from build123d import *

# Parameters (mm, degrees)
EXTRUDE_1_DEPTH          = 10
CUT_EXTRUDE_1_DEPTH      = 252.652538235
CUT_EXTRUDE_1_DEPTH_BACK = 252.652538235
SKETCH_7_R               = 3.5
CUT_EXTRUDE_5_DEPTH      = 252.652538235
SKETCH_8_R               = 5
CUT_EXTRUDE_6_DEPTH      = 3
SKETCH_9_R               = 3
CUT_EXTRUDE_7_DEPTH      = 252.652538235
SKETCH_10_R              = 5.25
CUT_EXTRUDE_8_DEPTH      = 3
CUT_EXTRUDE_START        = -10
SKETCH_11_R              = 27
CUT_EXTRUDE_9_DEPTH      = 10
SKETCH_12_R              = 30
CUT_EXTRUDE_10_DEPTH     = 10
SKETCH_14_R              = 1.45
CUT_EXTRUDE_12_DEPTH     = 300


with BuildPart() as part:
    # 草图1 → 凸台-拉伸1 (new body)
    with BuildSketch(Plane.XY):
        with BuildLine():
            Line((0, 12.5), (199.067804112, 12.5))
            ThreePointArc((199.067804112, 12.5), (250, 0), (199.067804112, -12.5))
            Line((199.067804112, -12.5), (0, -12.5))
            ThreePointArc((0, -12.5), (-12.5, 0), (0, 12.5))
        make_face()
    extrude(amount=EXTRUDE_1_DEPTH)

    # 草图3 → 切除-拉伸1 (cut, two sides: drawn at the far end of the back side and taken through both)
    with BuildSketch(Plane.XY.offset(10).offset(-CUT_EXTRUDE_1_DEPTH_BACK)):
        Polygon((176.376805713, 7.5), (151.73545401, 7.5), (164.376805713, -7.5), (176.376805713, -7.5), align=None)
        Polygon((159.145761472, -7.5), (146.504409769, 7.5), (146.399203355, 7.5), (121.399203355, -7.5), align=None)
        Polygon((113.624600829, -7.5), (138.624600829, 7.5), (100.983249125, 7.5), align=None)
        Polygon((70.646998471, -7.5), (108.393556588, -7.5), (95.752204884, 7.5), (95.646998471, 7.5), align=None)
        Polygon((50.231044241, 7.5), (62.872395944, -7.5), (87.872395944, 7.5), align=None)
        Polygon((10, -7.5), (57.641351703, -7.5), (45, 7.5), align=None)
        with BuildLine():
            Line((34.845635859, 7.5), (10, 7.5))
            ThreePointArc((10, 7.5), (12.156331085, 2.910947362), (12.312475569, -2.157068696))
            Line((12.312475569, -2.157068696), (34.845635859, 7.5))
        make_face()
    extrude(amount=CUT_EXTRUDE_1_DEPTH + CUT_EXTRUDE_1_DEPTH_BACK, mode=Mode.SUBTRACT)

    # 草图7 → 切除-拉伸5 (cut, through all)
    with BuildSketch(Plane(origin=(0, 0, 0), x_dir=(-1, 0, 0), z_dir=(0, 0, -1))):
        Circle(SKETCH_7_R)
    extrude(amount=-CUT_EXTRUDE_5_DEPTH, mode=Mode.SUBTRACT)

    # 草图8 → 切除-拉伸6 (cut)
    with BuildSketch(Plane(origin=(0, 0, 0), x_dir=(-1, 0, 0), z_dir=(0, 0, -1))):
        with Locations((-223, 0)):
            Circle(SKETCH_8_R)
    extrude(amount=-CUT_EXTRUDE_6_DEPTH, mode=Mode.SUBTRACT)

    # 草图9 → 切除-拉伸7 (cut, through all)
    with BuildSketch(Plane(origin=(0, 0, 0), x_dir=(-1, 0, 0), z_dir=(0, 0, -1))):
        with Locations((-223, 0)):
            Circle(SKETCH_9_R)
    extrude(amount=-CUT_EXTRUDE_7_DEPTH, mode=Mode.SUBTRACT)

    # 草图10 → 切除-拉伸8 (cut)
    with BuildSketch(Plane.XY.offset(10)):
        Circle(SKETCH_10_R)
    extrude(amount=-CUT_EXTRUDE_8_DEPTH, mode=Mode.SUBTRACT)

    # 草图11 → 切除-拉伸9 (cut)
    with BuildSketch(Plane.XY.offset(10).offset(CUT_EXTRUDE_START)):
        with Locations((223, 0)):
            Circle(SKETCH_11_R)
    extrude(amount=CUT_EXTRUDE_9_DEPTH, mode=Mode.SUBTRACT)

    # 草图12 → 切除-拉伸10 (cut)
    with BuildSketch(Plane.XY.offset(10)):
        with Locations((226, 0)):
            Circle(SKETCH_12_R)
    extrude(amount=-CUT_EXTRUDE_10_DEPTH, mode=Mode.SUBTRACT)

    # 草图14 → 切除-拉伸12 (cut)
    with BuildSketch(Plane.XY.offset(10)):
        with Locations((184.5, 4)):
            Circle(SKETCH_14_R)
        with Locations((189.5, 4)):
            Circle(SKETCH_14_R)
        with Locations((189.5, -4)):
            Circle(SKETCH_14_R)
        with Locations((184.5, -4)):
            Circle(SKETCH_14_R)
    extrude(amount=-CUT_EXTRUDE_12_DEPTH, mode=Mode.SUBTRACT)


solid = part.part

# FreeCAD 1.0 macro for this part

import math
import FreeCAD as App
import Part
import Sketcher


def add_polygon(sketch, points):
    """Adds a closed chain of lines whose ends are joined by coincident constraints."""
    first, n = sketch.GeometryCount, len(points)
    for a, b in zip(points, points[1:] + points[:1]):
        sketch.addGeometry(Part.LineSegment(App.Vector(*a, 0), App.Vector(*b, 0)), False)
    for i in range(n):
        sketch.addConstraint(Sketcher.Constraint("Coincident", first + i, 2, first + (i + 1) % n, 1))

doc = App.newDocument("Part")
body = doc.addObject("PartDesign::Body", "Body")

# Sketch on XY plane
sketch1 = body.newObject("Sketcher::SketchObject", "Sketch")
sketch1.AttachmentSupport = (doc.getObject("XY_Plane"), [""])
sketch1.MapMode = "FlatFace"
sketch1.addGeometry(Part.LineSegment(App.Vector(199, 12, 0), App.Vector(0, 12, 0)), False)
sketch1.addGeometry(Part.ArcOfCircle(Part.Circle(App.Vector(0, 0, 0), App.Vector(0, 0, 1), 12), math.radians(90), math.radians(270)), False)
sketch1.addGeometry(Part.LineSegment(App.Vector(0, -12, 0), App.Vector(199, -12, 0)), False)
sketch1.addGeometry(Part.ArcOfCircle(Part.Circle(App.Vector(223, 0, 0), App.Vector(0, 0, 1), 27), math.radians(-152), math.radians(152)), False)
sketch1.addConstraint(Sketcher.Constraint("Tangent", 0, 2, 1, 1))
sketch1.addConstraint(Sketcher.Constraint("Tangent", 1, 2, 2, 1))
sketch1.addConstraint(Sketcher.Constraint("Coincident", 2, 2, 3, 1))
sketch1.addConstraint(Sketcher.Constraint("Coincident", 3, 2, 0, 1))
sketch1.addConstraint(Sketcher.Constraint("Horizontal", 0))
sketch1.addConstraint(Sketcher.Constraint("Horizontal", 2))
sketch1.addConstraint(Sketcher.Constraint("Coincident", 1, 3, -1, 1))
sketch1.addConstraint(Sketcher.Constraint("PointOnObject", 3, 3, -1))
sketch1.addConstraint(Sketcher.Constraint("Radius", 3, 27.0))
sketch1.addConstraint(Sketcher.Constraint("Radius", 1, 12.5))
sketch1.addConstraint(Sketcher.Constraint("DistanceX", -1, 1, 3, 3, 223.0))
pad1 = body.newObject("PartDesign::Pad", "Pad")
pad1.Profile = sketch1
pad1.Length = 10

# Sketch on XY plane
sketch2 = body.newObject("Sketcher::SketchObject", "Sketch001")
sketch2.AttachmentSupport = (doc.getObject("XY_Plane"), [""])
sketch2.MapMode = "FlatFace"
sketch2.AttachmentOffset = App.Placement(App.Vector(0, 0, 10), App.Rotation())
add_polygon(sketch2, [(176.38, 7.5), (151.74, 7.5), (164.38, -7.5), (176.38, -7.5)])  # lines 0-3
add_polygon(sketch2, [(159.15, -7.5), (146.5, 7.5), (146.4, 7.5), (121.4, -7.5)])  # lines 4-7
add_polygon(sketch2, [(113.62, -7.5), (138.62, 7.5), (100.98, 7.5)])  # lines 8-10
add_polygon(sketch2, [(70.65, -7.5), (108.39, -7.5), (95.75, 7.5), (95.65, 7.5)])  # lines 11-14
add_polygon(sketch2, [(50.23, 7.5), (62.87, -7.5), (87.87, 7.5)])  # lines 15-17
add_polygon(sketch2, [(10, -7.5), (57.64, -7.5), (45, 7.5)])  # lines 18-20
sketch2.addGeometry(Part.LineSegment(App.Vector(34.85, 7.5, 0), App.Vector(10, 7.5, 0)), False)  # 21
sketch2.addGeometry(Part.ArcOfCircle(Part.Circle(App.Vector(0, 0, 0), App.Vector(0, 0, 1), 12.5), math.radians(-10), math.radians(37)), False)  # 22
sketch2.addGeometry(Part.LineSegment(App.Vector(12.31, -2.16, 0), App.Vector(34.85, 7.5, 0)), False)  # 23
sketch2.addConstraint(Sketcher.Constraint("Coincident", 21, 2, 22, 2))
sketch2.addConstraint(Sketcher.Constraint("Coincident", 22, 1, 23, 1))
sketch2.addConstraint(Sketcher.Constraint("Coincident", 23, 2, 21, 1))
sketch2.addConstraint(Sketcher.Constraint("Horizontal", 0))
sketch2.addConstraint(Sketcher.Constraint("Horizontal", 2))
sketch2.addConstraint(Sketcher.Constraint("Vertical", 3))
sketch2.addConstraint(Sketcher.Constraint("Horizontal", 5))
sketch2.addConstraint(Sketcher.Constraint("Horizontal", 7))
sketch2.addConstraint(Sketcher.Constraint("Horizontal", 9))
sketch2.addConstraint(Sketcher.Constraint("Horizontal", 11))
sketch2.addConstraint(Sketcher.Constraint("Horizontal", 13))
sketch2.addConstraint(Sketcher.Constraint("Horizontal", 17))
sketch2.addConstraint(Sketcher.Constraint("Horizontal", 18))
sketch2.addConstraint(Sketcher.Constraint("Horizontal", 21))
sketch2.addConstraint(Sketcher.Constraint("Coincident", 22, 3, -1, 1))
sketch2.addConstraint(Sketcher.Constraint("Symmetric", 20, 2, 21, 2, -1))
sketch2.addConstraint(Sketcher.Constraint("Parallel", 1, 4))
sketch2.addConstraint(Sketcher.Constraint("Parallel", 6, 8))
sketch2.addConstraint(Sketcher.Constraint("Parallel", 4, 10))
sketch2.addConstraint(Sketcher.Constraint("Parallel", 10, 12))
sketch2.addConstraint(Sketcher.Constraint("Parallel", 8, 14))
sketch2.addConstraint(Sketcher.Constraint("Parallel", 12, 15))
sketch2.addConstraint(Sketcher.Constraint("Parallel", 14, 16))
sketch2.addConstraint(Sketcher.Constraint("Parallel", 15, 19))
sketch2.addConstraint(Sketcher.Constraint("Parallel", 20, 23))
sketch2.addConstraint(Sketcher.Constraint("Horizontal", 3, 2, 4, 2))
sketch2.addConstraint(Sketcher.Constraint("Horizontal", 2, 2, 6, 2))
sketch2.addConstraint(Sketcher.Constraint("Horizontal", 5, 2, 8, 2))
sketch2.addConstraint(Sketcher.Constraint("Horizontal", 7, 2, 10, 2))
sketch2.addConstraint(Sketcher.Constraint("Horizontal", 10, 2, 11, 2))
sketch2.addConstraint(Sketcher.Constraint("Horizontal", 9, 2, 12, 2))
sketch2.addConstraint(Sketcher.Constraint("Horizontal", 14, 2, 15, 2))
sketch2.addConstraint(Sketcher.Constraint("Horizontal", 13, 2, 16, 2))
sketch2.addConstraint(Sketcher.Constraint("Horizontal", 15, 2, 18, 2))
sketch2.addConstraint(Sketcher.Constraint("Horizontal", 17, 2, 19, 2))
sketch2.addConstraint(Sketcher.Constraint("Horizontal", 19, 2, 21, 2))
sketch2.addConstraint(Sketcher.Constraint("Equal", 7, 11))
sketch2.addConstraint(Sketcher.Constraint("Radius", 22, 12.5))
sketch2.addConstraint(Sketcher.Constraint("DistanceX", 2, 1, 2, 2, 12.0))
sketch2.addConstraint(Sketcher.Constraint("DistanceY", 3, 1, 3, 2, 15.0))
sketch2.addConstraint(Sketcher.Constraint("DistanceX", -1, 1, 19, 2, 45.0))
sketch2.addConstraint(Sketcher.Constraint("DistanceX", 6, 2, 5, 2, 25.0))
sketch2.addConstraint(Sketcher.Constraint("DistanceX", -1, 1, 13, 2, 95.646998))
sketch2.addConstraint(Sketcher.Constraint("DistanceX", 12, 2, 6, 2, 25.646998))
sketch2.addConstraint(Sketcher.Constraint("DistanceX", 0, 2, 0, 1, 24.641352))
sketch2.addConstraint(Sketcher.Constraint("DistanceX", 7, 1, 7, 2, 37.746558))
sketch2.addConstraint(Sketcher.Constraint("DistanceX", -1, 1, 8, 2, 138.624601))
sketch2.addConstraint(Sketcher.Constraint("Distance", 23, 24.515348))
sketch2.addConstraint(Sketcher.Constraint("DistanceX", 5, 2, 0, 2, 5.336251))
sketch2.addConstraint(Sketcher.Constraint("DistanceX", 15, 2, 12, 2, 32.879809))
pocket1 = body.newObject("PartDesign::Pocket", "Pocket")
pocket1.Profile = sketch2
pocket1.Type = "ThroughAll"
pocket1.Midplane = True

# Sketch on XY plane
sketch3 = body.newObject("Sketcher::SketchObject", "Sketch002")
sketch3.AttachmentSupport = (doc.getObject("XY_Plane"), [""])
sketch3.MapMode = "FlatFace"
sketch3.addGeometry(Part.Circle(App.Vector(0, 0, 0), App.Vector(0, 0, 1), 3.5), False)
sketch3.addConstraint(Sketcher.Constraint("Coincident", 0, 3, -1, 1))
sketch3.addConstraint(Sketcher.Constraint("Diameter", 0, 7.0))
pocket2 = body.newObject("PartDesign::Pocket", "Pocket001")
pocket2.Profile = sketch3
pocket2.Type = "ThroughAll"
pocket2.Reversed = True

# Sketch on XY plane
sketch4 = body.newObject("Sketcher::SketchObject", "Sketch003")
sketch4.AttachmentSupport = (doc.getObject("XY_Plane"), [""])
sketch4.MapMode = "FlatFace"
sketch4.addGeometry(Part.Circle(App.Vector(223, 0, 0), App.Vector(0, 0, 1), 5), False)
sketch4.addConstraint(Sketcher.Constraint("PointOnObject", 0, 3, -1))
sketch4.addConstraint(Sketcher.Constraint("Diameter", 0, 10.0))
sketch4.addConstraint(Sketcher.Constraint("DistanceX", -1, 1, 0, 3, 223.0))
pocket3 = body.newObject("PartDesign::Pocket", "Pocket002")
pocket3.Profile = sketch4
pocket3.Length = 3
pocket3.Reversed = True

# Sketch on XY plane
sketch5 = body.newObject("Sketcher::SketchObject", "Sketch004")
sketch5.AttachmentSupport = (doc.getObject("XY_Plane"), [""])
sketch5.MapMode = "FlatFace"
sketch5.addGeometry(Part.Circle(App.Vector(223, 0, 0), App.Vector(0, 0, 1), 3), False)
sketch5.addConstraint(Sketcher.Constraint("PointOnObject", 0, 3, -1))
sketch5.addConstraint(Sketcher.Constraint("Diameter", 0, 6.0))
sketch5.addConstraint(Sketcher.Constraint("DistanceX", -1, 1, 0, 3, 223.0))
pocket4 = body.newObject("PartDesign::Pocket", "Pocket003")
pocket4.Profile = sketch5
pocket4.Type = "ThroughAll"
pocket4.Reversed = True

# Sketch on XY plane
sketch6 = body.newObject("Sketcher::SketchObject", "Sketch005")
sketch6.AttachmentSupport = (doc.getObject("XY_Plane"), [""])
sketch6.MapMode = "FlatFace"
sketch6.AttachmentOffset = App.Placement(App.Vector(0, 0, 10), App.Rotation())
sketch6.addGeometry(Part.Circle(App.Vector(0, 0, 0), App.Vector(0, 0, 1), 5), False)
sketch6.addConstraint(Sketcher.Constraint("Coincident", 0, 3, -1, 1))
sketch6.addConstraint(Sketcher.Constraint("Diameter", 0, 10.5))
pocket5 = body.newObject("PartDesign::Pocket", "Pocket004")
pocket5.Profile = sketch6
pocket5.Length = 3

# Sketch on XY plane
sketch7 = body.newObject("Sketcher::SketchObject", "Sketch006")
sketch7.AttachmentSupport = (doc.getObject("XY_Plane"), [""])
sketch7.MapMode = "FlatFace"
sketch7.addGeometry(Part.Circle(App.Vector(223, 0, 0), App.Vector(0, 0, 1), 27), False)
sketch7.addConstraint(Sketcher.Constraint("PointOnObject", 0, 3, -1))
sketch7.addConstraint(Sketcher.Constraint("Diameter", 0, 54.0))
sketch7.addConstraint(Sketcher.Constraint("DistanceX", -1, 1, 0, 3, 223.0))
pocket6 = body.newObject("PartDesign::Pocket", "Pocket005")
pocket6.Profile = sketch7
pocket6.Length = 10
pocket6.Reversed = True

# Sketch on XY plane
sketch8 = body.newObject("Sketcher::SketchObject", "Sketch007")
sketch8.AttachmentSupport = (doc.getObject("XY_Plane"), [""])
sketch8.MapMode = "FlatFace"
sketch8.AttachmentOffset = App.Placement(App.Vector(0, 0, 10), App.Rotation())
sketch8.addGeometry(Part.Circle(App.Vector(226, 0, 0), App.Vector(0, 0, 1), 30), False)
sketch8.addConstraint(Sketcher.Constraint("PointOnObject", 0, 3, -1))
sketch8.addConstraint(Sketcher.Constraint("Diameter", 0, 60.0))
sketch8.addConstraint(Sketcher.Constraint("DistanceX", -1, 1, 0, 3, 226.0))
pocket7 = body.newObject("PartDesign::Pocket", "Pocket006")
pocket7.Profile = sketch8
pocket7.Length = 10

# Sketch on XY plane
sketch9 = body.newObject("Sketcher::SketchObject", "Sketch008")
sketch9.AttachmentSupport = (doc.getObject("XY_Plane"), [""])
sketch9.MapMode = "FlatFace"
sketch9.AttachmentOffset = App.Placement(App.Vector(0, 0, 10), App.Rotation())
sketch9.addGeometry(Part.Circle(App.Vector(184.5, 4, 0), App.Vector(0, 0, 1), 1.4), False)
sketch9.addGeometry(Part.Circle(App.Vector(189.5, 4, 0), App.Vector(0, 0, 1), 1.4), False)
sketch9.addGeometry(Part.Circle(App.Vector(189.5, -4, 0), App.Vector(0, 0, 1), 1.4), False)
sketch9.addGeometry(Part.Circle(App.Vector(184.5, -4, 0), App.Vector(0, 0, 1), 1.4), False)
sketch9.addConstraint(Sketcher.Constraint("Equal", 0, 1))
sketch9.addConstraint(Sketcher.Constraint("Equal", 1, 2))
sketch9.addConstraint(Sketcher.Constraint("Equal", 2, 3))
sketch9.addConstraint(Sketcher.Constraint("Symmetric", 1, 3, 2, 3, -1))
sketch9.addConstraint(Sketcher.Constraint("Symmetric", 0, 3, 3, 3, -1))
sketch9.addConstraint(Sketcher.Constraint("Horizontal", 0, 3, 1, 3))
sketch9.addConstraint(Sketcher.Constraint("Diameter", 0, 2.9))
sketch9.addConstraint(Sketcher.Constraint("DistanceY", -1, 1, 0, 3, 4.0))
sketch9.addConstraint(Sketcher.Constraint("DistanceX", 0, 3, 1, 3, 5.0))
sketch9.addConstraint(Sketcher.Constraint("DistanceX", -1, 1, 0, 3, 184.5))
pocket8 = body.newObject("PartDesign::Pocket", "Pocket007")
pocket8.Profile = sketch9
pocket8.Length = 300

doc.recompute()
